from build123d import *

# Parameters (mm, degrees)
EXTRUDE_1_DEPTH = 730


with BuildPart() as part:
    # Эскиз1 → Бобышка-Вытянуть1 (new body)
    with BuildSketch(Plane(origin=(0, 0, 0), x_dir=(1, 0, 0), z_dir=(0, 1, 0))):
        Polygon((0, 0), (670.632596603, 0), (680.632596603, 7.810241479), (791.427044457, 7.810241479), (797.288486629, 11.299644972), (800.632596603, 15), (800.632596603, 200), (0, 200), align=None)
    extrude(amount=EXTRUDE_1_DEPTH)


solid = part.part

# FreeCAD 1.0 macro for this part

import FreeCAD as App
import Part
import Sketcher
Q = App.Units.Quantity


def add_polygon(sketch, points):
    """Adds a closed chain of lines whose ends are joined by coincident constraints."""
    first, n = sketch.GeometryCount, len(points)
    for a, b in zip(points, points[1:] + points[:1]):
        sketch.addGeometry(Part.LineSegment(App.Vector(*a, 0), App.Vector(*b, 0)), False)
    for i in range(n):
        sketch.addConstraint(Sketcher.Constraint("Coincident", first + i, 2, first + (i + 1) % n, 1))

doc = App.newDocument("Part")
body = doc.addObject("PartDesign::Body", "Body")

# Sketch on XZ plane
sketch1 = doc.addObject("Sketcher::SketchObject", "Sketch")
body.addObject(sketch1)
sketch1.AttachmentSupport = (doc.XZ_Plane, [""])
sketch1.MapMode = "FlatFace"
add_polygon(sketch1, [(0, 0), (670.632597, 0), (680.632597, -7.810241), (791.427044, -7.810241), (797.288487, -11.299645), (800.632597, -15), (800.632597, -200), (0, -200)])  # lines 0-7
sketch1.addConstraint(Sketcher.Constraint("Horizontal", 0))
sketch1.addConstraint(Sketcher.Constraint("Horizontal", 2))
sketch1.addConstraint(Sketcher.Constraint("Vertical", 5))
sketch1.addConstraint(Sketcher.Constraint("Horizontal", 6))
sketch1.addConstraint(Sketcher.Constraint("Vertical", 7))
sketch1.addConstraint(Sketcher.Constraint("Coincident", 7, 2, -1, 1))
sketch1.addConstraint(Sketcher.Constraint("DistanceY", 5, 2, 5, 1, Q("185 mm")))
sketch1.addConstraint(Sketcher.Constraint("DistanceY", 7, 1, 7, 2, Q("200 mm")))
sketch1.addConstraint(Sketcher.Constraint("DistanceX", 0, 2, 1, 2, Q("10 mm")))
sketch1.addConstraint(Sketcher.Constraint("DistanceX", 1, 2, 4, 2, Q("120 mm")))
sketch1.addConstraint(Sketcher.Constraint("Distance", 3, Q("6.821469 mm")))
sketch1.addConstraint(Sketcher.Constraint("DistanceX", 0, 1, 0, 2, Q("670.632597 mm")))
sketch1.addConstraint(Sketcher.Constraint("DistanceX", 2, 1, 2, 2, Q("110.794448 mm")))
sketch1.addConstraint(Sketcher.Constraint("DistanceY", 1, 2, -1, 1, Q("7.810241 mm")))
sketch1.addConstraint(Sketcher.Constraint("DistanceX", 1, 2, 3, 2, Q("116.65589 mm")))
pad1 = doc.addObject("PartDesign::Pad", "Pad")
body.addObject(pad1)
pad1.Profile = sketch1
pad1.Length = 730
pad1.Reversed = True

doc.recompute()
